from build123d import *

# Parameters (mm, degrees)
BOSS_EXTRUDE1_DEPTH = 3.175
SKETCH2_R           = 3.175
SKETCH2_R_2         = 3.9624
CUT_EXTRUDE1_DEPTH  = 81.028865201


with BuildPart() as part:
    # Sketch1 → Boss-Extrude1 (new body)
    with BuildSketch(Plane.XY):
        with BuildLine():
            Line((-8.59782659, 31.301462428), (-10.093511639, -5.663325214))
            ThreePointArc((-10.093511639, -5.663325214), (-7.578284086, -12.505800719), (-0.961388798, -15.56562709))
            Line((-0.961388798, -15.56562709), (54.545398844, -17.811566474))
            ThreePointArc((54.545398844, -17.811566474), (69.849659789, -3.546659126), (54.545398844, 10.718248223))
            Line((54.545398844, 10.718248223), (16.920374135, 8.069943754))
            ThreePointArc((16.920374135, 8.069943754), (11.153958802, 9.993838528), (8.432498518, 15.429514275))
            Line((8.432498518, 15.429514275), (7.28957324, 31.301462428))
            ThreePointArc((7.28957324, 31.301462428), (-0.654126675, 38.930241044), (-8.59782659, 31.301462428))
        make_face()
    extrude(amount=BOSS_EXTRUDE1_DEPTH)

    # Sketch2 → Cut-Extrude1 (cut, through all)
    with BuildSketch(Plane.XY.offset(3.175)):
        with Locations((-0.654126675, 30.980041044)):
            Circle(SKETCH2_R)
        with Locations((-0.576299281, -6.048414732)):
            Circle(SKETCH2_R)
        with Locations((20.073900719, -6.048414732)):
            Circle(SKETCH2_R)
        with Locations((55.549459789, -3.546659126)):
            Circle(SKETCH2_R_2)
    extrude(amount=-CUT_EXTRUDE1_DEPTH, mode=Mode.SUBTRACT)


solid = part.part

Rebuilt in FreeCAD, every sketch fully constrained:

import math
import FreeCAD as App
import Part
import Sketcher

V = App.Vector
Q = App.Units.Quantity

doc = App.newDocument("Part")
body = doc.addObject("PartDesign::Body", "Body")

# Sketch on XY plane
sketch1 = body.newObject("Sketcher::SketchObject", "Sketch")
sketch1.AttachmentSupport = (doc.getObject("XY_Plane"), [""])
sketch1.MapMode = "FlatFace"
sketch1.addGeometry([
    Part.LineSegment(V(-8.597827, 31.301462, 0), V(-10.093512, -5.663325, 0)),  # 0
    Part.ArcOfCircle(Part.Circle(V(-0.576299, -6.048415, 0), V(0, 0, 1), 9.525), math.radians(177.682938), math.radians(267.682938)),  # 1
    Part.LineSegment(V(-0.961389, -15.565627, 0), V(54.545399, -17.811566, 0)),  # 2
    Part.ArcOfCircle(Part.Circle(V(55.54946, -3.546659, 0), V(0, 0, 1), 14.3002), math.radians(-94.026225), math.radians(94.026225)),  # 3
    Part.LineSegment(V(54.545399, 10.718248, 0), V(16.920374, 8.069944, 0)),  # 4
    Part.ArcOfCircle(Part.Circle(V(16.362166, 16.000523, 0), V(0, 0, 1), 7.9502), math.radians(-175.88129), math.radians(-85.973775)),  # 5
    Part.LineSegment(V(8.432499, 15.429514, 0), V(7.289573, 31.301462, 0)),  # 6
    Part.ArcOfCircle(Part.Circle(V(-0.654127, 30.980041, 0), V(0, 0, 1), 7.9502), math.radians(2.317062), math.radians(177.682938)),  # 7
], False)
sketch1.addConstraint([
    Sketcher.Constraint("Tangent", 0, 2, 1, 1),
    Sketcher.Constraint("Tangent", 1, 2, 2, 1),
    Sketcher.Constraint("Coincident", 2, 2, 3, 1),
    Sketcher.Constraint("Tangent", 3, 2, 4, 1),
    Sketcher.Constraint("Tangent", 4, 2, 5, 2),
    Sketcher.Constraint("Tangent", 5, 1, 6, 1),
    Sketcher.Constraint("Coincident", 6, 2, 7, 1),
    Sketcher.Constraint("Tangent", 7, 2, 0, 1),
    Sketcher.Constraint("Equal", 5, 7),
    Sketcher.Constraint("Perpendicular", 0, 2),
    Sketcher.Constraint("Horizontal", 6, 2, 7, 2),
    Sketcher.Constraint("Vertical", 2, 2, 3, 2),
    Sketcher.Constraint("Radius", 1, Q("0.375 in")),
    Sketcher.Constraint("Radius", 3, Q("0.563 in")),
    Sketcher.Constraint("Radius", 5, Q("0.313 in")),
    Sketcher.Constraint("DistanceX", 1, 3, -1, 1, Q("0.576299 mm")),
    Sketcher.Constraint("DistanceX", -1, 1, 2, 2, Q("54.545399 mm")),
    Sketcher.Constraint("DistanceX", -1, 1, 5, 1, Q("8.432499 mm")),
    Sketcher.Constraint("DistanceY", 3, 3, 7, 3, Q("34.5267 mm")),
    Sketcher.Constraint("DistanceY", 1, 2, 0, 2, Q("9.902302 mm")),
    Sketcher.Constraint("DistanceX", 7, 3, 4, 2, Q("17.574501 mm")),
    Sketcher.Constraint("DistanceY", 3, 3, -1, 1, Q("3.546659 mm")),
])
pad1 = body.newObject("PartDesign::Pad", "Pad")
pad1.Profile = sketch1
pad1.Length = Q("0.125 in")

# Sketch on XY plane
sketch2 = body.newObject("Sketcher::SketchObject", "Sketch001")
sketch2.AttachmentSupport = (doc.getObject("XY_Plane"), [""])
sketch2.MapMode = "FlatFace"
sketch2.AttachmentOffset = App.Placement(V(0, 0, 0.125 * 25.4), App.Rotation())
sketch2.addGeometry([
    Part.Circle(V(-0.654127, 30.980041, 0), V(0, 0, 1), 3.175),
    Part.Circle(V(-0.576299, -6.048415, 0), V(0, 0, 1), 3.175),
    Part.Circle(V(20.073901, -6.048415, 0), V(0, 0, 1), 3.175),
    Part.Circle(V(55.54946, -3.546659, 0), V(0, 0, 1), 3.9624),
], False)
sketch2.addConstraint([
    Sketcher.Constraint("Equal", 0, 1),
    Sketcher.Constraint("Equal", 1, 2),
    Sketcher.Constraint("Horizontal", 1, 3, 2, 3),
    Sketcher.Constraint("Diameter", 0, Q("0.25 in")),
    Sketcher.Constraint("Diameter", 3, Q("0.312 in")),
    Sketcher.Constraint("DistanceX", 1, 3, 2, 3, Q("0.813 in")),
    Sketcher.Constraint("DistanceX", 1, 3, -1, 1, Q("0.576299 mm")),
    Sketcher.Constraint("DistanceY", 3, 3, 0, 3, Q("34.5267 mm")),
    Sketcher.Constraint("DistanceY", -1, 1, 0, 3, Q("30.980041 mm")),
    Sketcher.Constraint("DistanceX", -1, 1, 3, 3, Q("55.54946 mm")),
    Sketcher.Constraint("DistanceX", 0, 3, -1, 1, Q("0.654127 mm")),
    Sketcher.Constraint("DistanceY", 1, 3, -1, 1, Q("6.048415 mm")),
])
pocket1 = body.newObject("PartDesign::Pocket", "Pocket")
pocket1.Profile = sketch2
pocket1.Type = "ThroughAll"

doc.recompute()
